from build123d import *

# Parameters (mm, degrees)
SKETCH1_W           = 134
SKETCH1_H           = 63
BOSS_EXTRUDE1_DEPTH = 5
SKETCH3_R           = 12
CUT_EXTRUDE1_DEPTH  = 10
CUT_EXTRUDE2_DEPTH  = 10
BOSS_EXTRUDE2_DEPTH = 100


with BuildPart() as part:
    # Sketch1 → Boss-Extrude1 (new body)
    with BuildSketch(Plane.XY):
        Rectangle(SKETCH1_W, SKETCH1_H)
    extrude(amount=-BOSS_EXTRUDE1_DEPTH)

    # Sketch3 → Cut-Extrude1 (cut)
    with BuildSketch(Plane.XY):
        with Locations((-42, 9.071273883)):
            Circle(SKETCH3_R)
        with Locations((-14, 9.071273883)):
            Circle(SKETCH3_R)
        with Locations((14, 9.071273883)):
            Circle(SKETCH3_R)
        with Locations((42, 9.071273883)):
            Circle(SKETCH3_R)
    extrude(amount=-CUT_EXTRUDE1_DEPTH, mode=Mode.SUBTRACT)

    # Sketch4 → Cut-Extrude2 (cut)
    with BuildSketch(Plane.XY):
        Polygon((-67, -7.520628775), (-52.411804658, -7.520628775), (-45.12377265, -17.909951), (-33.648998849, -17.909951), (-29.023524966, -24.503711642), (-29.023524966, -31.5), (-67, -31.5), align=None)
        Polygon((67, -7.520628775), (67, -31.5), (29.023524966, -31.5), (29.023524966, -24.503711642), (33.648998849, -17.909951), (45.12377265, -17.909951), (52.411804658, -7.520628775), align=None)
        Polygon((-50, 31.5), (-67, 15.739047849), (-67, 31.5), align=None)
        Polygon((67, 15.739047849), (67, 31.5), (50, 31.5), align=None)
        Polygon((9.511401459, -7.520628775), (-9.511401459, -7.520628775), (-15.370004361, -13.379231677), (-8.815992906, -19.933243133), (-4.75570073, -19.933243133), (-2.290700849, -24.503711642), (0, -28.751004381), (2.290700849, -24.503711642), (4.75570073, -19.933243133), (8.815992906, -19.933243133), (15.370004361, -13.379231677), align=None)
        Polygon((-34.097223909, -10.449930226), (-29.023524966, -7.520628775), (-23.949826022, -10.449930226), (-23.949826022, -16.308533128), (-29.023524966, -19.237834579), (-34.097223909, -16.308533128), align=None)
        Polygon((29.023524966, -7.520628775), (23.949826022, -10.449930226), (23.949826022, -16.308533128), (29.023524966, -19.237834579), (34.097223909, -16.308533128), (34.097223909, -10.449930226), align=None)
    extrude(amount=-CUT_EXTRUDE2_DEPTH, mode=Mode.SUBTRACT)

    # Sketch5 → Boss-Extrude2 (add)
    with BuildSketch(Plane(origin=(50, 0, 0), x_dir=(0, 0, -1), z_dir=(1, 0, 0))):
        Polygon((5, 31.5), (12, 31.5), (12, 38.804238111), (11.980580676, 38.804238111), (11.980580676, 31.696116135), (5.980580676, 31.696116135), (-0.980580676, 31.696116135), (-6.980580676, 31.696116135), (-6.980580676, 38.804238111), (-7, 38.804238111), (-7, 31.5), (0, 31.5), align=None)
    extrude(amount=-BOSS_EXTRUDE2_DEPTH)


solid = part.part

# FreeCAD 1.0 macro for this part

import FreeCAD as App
import Part
import Sketcher

V = App.Vector
Q = App.Units.Quantity

doc = App.newDocument("Part")
params = doc.addObject("Spreadsheet::Sheet", "Params")
for row, (alias, value) in enumerate([
    ("sketch1_width", "134 mm"),
    ("sketch1_height", "63 mm"),
    ("pad1_length", "5 mm"),
    ("sketch2_diameter", "24 mm"),
    ("pocket1_length", "10 mm"),
    ("sketch3_width", "17 mm"),
    ("pocket2_length", "10 mm"),
    ("sketch4_height", "19 mm"),
    ("pad2_length", "100 mm"),
], start=1):
    params.set(f"A{row}", alias)
    params.set(f"B{row}", "=" + value)
    params.setAlias(f"B{row}", alias)

body = doc.addObject("PartDesign::Body", "Body")

# Sketch on XY plane
sketch1 = doc.addObject("Sketcher::SketchObject", "Sketch")
body.addObject(sketch1)
sketch1.AttachmentSupport = (doc.XY_Plane, [""])
sketch1.MapMode = "FlatFace"
sketch1.addGeometry(Part.LineSegment(V(-67, 31.5, 0), V(-67, -31.5, 0)), False)
sketch1.addGeometry(Part.LineSegment(V(-67, -31.5, 0), V(67, -31.5, 0)), False)
sketch1.addGeometry(Part.LineSegment(V(67, -31.5, 0), V(67, 31.5, 0)), False)
sketch1.addGeometry(Part.LineSegment(V(67, 31.5, 0), V(-67, 31.5, 0)), False)
sketch1.addConstraint(Sketcher.Constraint("Coincident", 0, 2, 1, 1))
sketch1.addConstraint(Sketcher.Constraint("Coincident", 1, 2, 2, 1))
sketch1.addConstraint(Sketcher.Constraint("Coincident", 2, 2, 3, 1))
sketch1.addConstraint(Sketcher.Constraint("Coincident", 3, 2, 0, 1))
sketch1.addConstraint(Sketcher.Constraint("Vertical", 0))
sketch1.addConstraint(Sketcher.Constraint("Horizontal", 1))
sketch1.addConstraint(Sketcher.Constraint("Vertical", 2))
sketch1.addConstraint(Sketcher.Constraint("Horizontal", 3))
sketch1.addConstraint(Sketcher.Constraint("Symmetric", 0, 2, 2, 2, -1, 1))
sketch1.addConstraint(Sketcher.Constraint("DistanceX", 1, 1, 1, 2, 134.0))
sketch1.addConstraint(Sketcher.Constraint("DistanceY", 0, 2, 0, 1, 63.0))
sketch1.setExpression("Constraints[9]", "Params.sketch1_width")
sketch1.setExpression("Constraints[10]", "Params.sketch1_height")
pad1 = doc.addObject("PartDesign::Pad", "Pad")
body.addObject(pad1)
pad1.Profile = sketch1
pad1.setExpression("Length", "Params.pad1_length")
pad1.Reversed = True

# Sketch on XY plane
sketch2 = doc.addObject("Sketcher::SketchObject", "Sketch001")
body.addObject(sketch2)
sketch2.AttachmentSupport = (doc.XY_Plane, [""])
sketch2.MapMode = "FlatFace"
sketch2.addGeometry(Part.Circle(V(-42, 9.071274, 0), V(0, 0, 1), 12), False)
sketch2.addGeometry(Part.Circle(V(-14, 9.071274, 0), V(0, 0, 1), 12), False)
sketch2.addGeometry(Part.Circle(V(14, 9.071274, 0), V(0, 0, 1), 12), False)
sketch2.addGeometry(Part.Circle(V(42, 9.071274, 0), V(0, 0, 1), 12), False)
sketch2.addConstraint(Sketcher.Constraint("Equal", 0, 1))
sketch2.addConstraint(Sketcher.Constraint("Equal", 1, 2))
sketch2.addConstraint(Sketcher.Constraint("Equal", 2, 3))
sketch2.addConstraint(Sketcher.Constraint("Symmetric", 1, 3, 2, 3, -2))
sketch2.addConstraint(Sketcher.Constraint("Symmetric", 0, 3, 3, 3, -2))
sketch2.addConstraint(Sketcher.Constraint("Horizontal", 0, 3, 1, 3))
sketch2.addConstraint(Sketcher.Constraint("Diameter", 0, 24.0))
sketch2.addConstraint(Sketcher.Constraint("DistanceX", 0, 3, -1, 1, 42.0))
sketch2.addConstraint(Sketcher.Constraint("DistanceX", 1, 3, -1, 1, 14.0))
sketch2.addConstraint(Sketcher.Constraint("DistanceY", -1, 1, 0, 3, 9.071274))
sketch2.setExpression("Constraints[6]", "Params.sketch2_diameter")
pocket1 = doc.addObject("PartDesign::Pocket", "Pocket")
body.addObject(pocket1)
pocket1.Profile = sketch2
pocket1.setExpression("Length", "Params.pocket1_length")

# Sketch on XY plane
sketch3 = doc.addObject("Sketcher::SketchObject", "Sketch002")
body.addObject(sketch3)
sketch3.AttachmentSupport = (doc.XY_Plane, [""])
sketch3.MapMode = "FlatFace"
sketch3.addGeometry(Part.LineSegment(V(-52.411805, -7.520629, 0), V(-67, -7.520629, 0)), False)
sketch3.addGeometry(Part.LineSegment(V(-67, -7.520629, 0), V(-67, -31.5, 0)), False)
sketch3.addGeometry(Part.LineSegment(V(-67, -31.5, 0), V(-29.023525, -31.5, 0)), False)
sketch3.addGeometry(Part.LineSegment(V(-29.023525, -31.5, 0), V(-29.023525, -24.503712, 0)), False)
sketch3.addGeometry(Part.LineSegment(V(-29.023525, -24.503712, 0), V(-33.648999, -17.909951, 0)), False)
sketch3.addGeometry(Part.LineSegment(V(-33.648999, -17.909951, 0), V(-45.123773, -17.909951, 0)), False)
sketch3.addGeometry(Part.LineSegment(V(-45.123773, -17.909951, 0), V(-52.411805, -7.520629, 0)), False)
sketch3.addGeometry(Part.LineSegment(V(67, -31.5, 0), V(67, -7.520629, 0)), False)
sketch3.addGeometry(Part.LineSegment(V(67, -7.520629, 0), V(52.411805, -7.520629, 0)), False)
sketch3.addGeometry(Part.LineSegment(V(52.411805, -7.520629, 0), V(45.123773, -17.909951, 0)), False)
sketch3.addGeometry(Part.LineSegment(V(45.123773, -17.909951, 0), V(33.648999, -17.909951, 0)), False)
sketch3.addGeometry(Part.LineSegment(V(33.648999, -17.909951, 0), V(29.023525, -24.503712, 0)), False)
sketch3.addGeometry(Part.LineSegment(V(29.023525, -24.503712, 0), V(29.023525, -31.5, 0)), False)
sketch3.addGeometry(Part.LineSegment(V(29.023525, -31.5, 0), V(67, -31.5, 0)), False)
sketch3.addGeometry(Part.LineSegment(V(-67, 15.739048, 0), V(-50, 31.5, 0)), False)
sketch3.addGeometry(Part.LineSegment(V(-50, 31.5, 0), V(-67, 31.5, 0)), False)
sketch3.addGeometry(Part.LineSegment(V(-67, 31.5, 0), V(-67, 15.739048, 0)), False)
sketch3.addGeometry(Part.LineSegment(V(67, 15.739048, 0), V(67, 31.5, 0)), False)
sketch3.addGeometry(Part.LineSegment(V(67, 31.5, 0), V(50, 31.5, 0)), False)
sketch3.addGeometry(Part.LineSegment(V(50, 31.5, 0), V(67, 15.739048, 0)), False)
sketch3.addGeometry(Part.LineSegment(V(9.511401, -7.520629, 0), V(-9.511401, -7.520629, 0)), False)
sketch3.addGeometry(Part.LineSegment(V(-9.511401, -7.520629, 0), V(-15.370004, -13.379232, 0)), False)
sketch3.addGeometry(Part.LineSegment(V(-15.370004, -13.379232, 0), V(-8.815993, -19.933243, 0)), False)
sketch3.addGeometry(Part.LineSegment(V(-8.815993, -19.933243, 0), V(-4.755701, -19.933243, 0)), False)
sketch3.addGeometry(Part.LineSegment(V(-4.755701, -19.933243, 0), V(-2.290701, -24.503712, 0)), False)
sketch3.addGeometry(Part.LineSegment(V(-2.290701, -24.503712, 0), V(0, -28.751004, 0)), False)
sketch3.addGeometry(Part.LineSegment(V(0, -28.751004, 0), V(2.290701, -24.503712, 0)), False)
sketch3.addGeometry(Part.LineSegment(V(2.290701, -24.503712, 0), V(4.755701, -19.933243, 0)), False)
sketch3.addGeometry(Part.LineSegment(V(4.755701, -19.933243, 0), V(8.815993, -19.933243, 0)), False)
sketch3.addGeometry(Part.LineSegment(V(8.815993, -19.933243, 0), V(15.370004, -13.379232, 0)), False)
sketch3.addGeometry(Part.LineSegment(V(15.370004, -13.379232, 0), V(9.511401, -7.520629, 0)), False)
sketch3.addGeometry(Part.LineSegment(V(-29.023525, -7.520629, 0), V(-34.097224, -10.44993, 0)), False)
sketch3.addGeometry(Part.LineSegment(V(-34.097224, -10.44993, 0), V(-34.097224, -16.308533, 0)), False)
sketch3.addGeometry(Part.LineSegment(V(-34.097224, -16.308533, 0), V(-29.023525, -19.237835, 0)), False)
sketch3.addGeometry(Part.LineSegment(V(-29.023525, -19.237835, 0), V(-23.949826, -16.308533, 0)), False)
sketch3.addGeometry(Part.LineSegment(V(-23.949826, -16.308533, 0), V(-23.949826, -10.44993, 0)), False)
sketch3.addGeometry(Part.LineSegment(V(-23.949826, -10.44993, 0), V(-29.023525, -7.520629, 0)), False)
sketch3.addGeometry(Part.LineSegment(V(29.023525, -7.520629, 0), V(23.949826, -10.44993, 0)), False)
sketch3.addGeometry(Part.LineSegment(V(23.949826, -10.44993, 0), V(23.949826, -16.308533, 0)), False)
sketch3.addGeometry(Part.LineSegment(V(23.949826, -16.308533, 0), V(29.023525, -19.237835, 0)), False)
sketch3.addGeometry(Part.LineSegment(V(29.023525, -19.237835, 0), V(34.097224, -16.308533, 0)), False)
sketch3.addGeometry(Part.LineSegment(V(34.097224, -16.308533, 0), V(34.097224, -10.44993, 0)), False)
sketch3.addGeometry(Part.LineSegment(V(34.097224, -10.44993, 0), V(29.023525, -7.520629, 0)), False)
sketch3.addConstraint(Sketcher.Constraint("Coincident", 0, 2, 1, 1))
sketch3.addConstraint(Sketcher.Constraint("Coincident", 1, 2, 2, 1))
sketch3.addConstraint(Sketcher.Constraint("Coincident", 2, 2, 3, 1))
sketch3.addConstraint(Sketcher.Constraint("Coincident", 3, 2, 4, 1))
sketch3.addConstraint(Sketcher.Constraint("Coincident", 4, 2, 5, 1))
sketch3.addConstraint(Sketcher.Constraint("Coincident", 5, 2, 6, 1))
sketch3.addConstraint(Sketcher.Constraint("Coincident", 6, 2, 0, 1))
sketch3.addConstraint(Sketcher.Constraint("Coincident", 7, 2, 8, 1))
sketch3.addConstraint(Sketcher.Constraint("Coincident", 8, 2, 9, 1))
sketch3.addConstraint(Sketcher.Constraint("Coincident", 9, 2, 10, 1))
sketch3.addConstraint(Sketcher.Constraint("Coincident", 10, 2, 11, 1))
sketch3.addConstraint(Sketcher.Constraint("Coincident", 11, 2, 12, 1))
sketch3.addConstraint(Sketcher.Constraint("Coincident", 12, 2, 13, 1))
sketch3.addConstraint(Sketcher.Constraint("Coincident", 13, 2, 7, 1))
sketch3.addConstraint(Sketcher.Constraint("Coincident", 14, 2, 15, 1))
sketch3.addConstraint(Sketcher.Constraint("Coincident", 15, 2, 16, 1))
sketch3.addConstraint(Sketcher.Constraint("Coincident", 16, 2, 14, 1))
sketch3.addConstraint(Sketcher.Constraint("Coincident", 17, 2, 18, 1))
sketch3.addConstraint(Sketcher.Constraint("Coincident", 18, 2, 19, 1))
sketch3.addConstraint(Sketcher.Constraint("Coincident", 19, 2, 17, 1))
sketch3.addConstraint(Sketcher.Constraint("Coincident", 20, 2, 21, 1))
sketch3.addConstraint(Sketcher.Constraint("Coincident", 21, 2, 22, 1))
sketch3.addConstraint(Sketcher.Constraint("Coincident", 22, 2, 23, 1))
sketch3.addConstraint(Sketcher.Constraint("Coincident", 23, 2, 24, 1))
sketch3.addConstraint(Sketcher.Constraint("Coincident", 24, 2, 25, 1))
sketch3.addConstraint(Sketcher.Constraint("Coincident", 25, 2, 26, 1))
sketch3.addConstraint(Sketcher.Constraint("Coincident", 26, 2, 27, 1))
sketch3.addConstraint(Sketcher.Constraint("Coincident", 27, 2, 28, 1))
sketch3.addConstraint(Sketcher.Constraint("Coincident", 28, 2, 29, 1))
sketch3.addConstraint(Sketcher.Constraint("Coincident", 29, 2, 30, 1))
sketch3.addConstraint(Sketcher.Constraint("Coincident", 30, 2, 20, 1))
sketch3.addConstraint(Sketcher.Constraint("Coincident", 31, 2, 32, 1))
sketch3.addConstraint(Sketcher.Constraint("Coincident", 32, 2, 33, 1))
sketch3.addConstraint(Sketcher.Constraint("Coincident", 33, 2, 34, 1))
sketch3.addConstraint(Sketcher.Constraint("Coincident", 34, 2, 35, 1))
sketch3.addConstraint(Sketcher.Constraint("Coincident", 35, 2, 36, 1))
sketch3.addConstraint(Sketcher.Constraint("Coincident", 36, 2, 31, 1))
sketch3.addConstraint(Sketcher.Constraint("Coincident", 37, 2, 38, 1))
sketch3.addConstraint(Sketcher.Constraint("Coincident", 38, 2, 39, 1))
sketch3.addConstraint(Sketcher.Constraint("Coincident", 39, 2, 40, 1))
sketch3.addConstraint(Sketcher.Constraint("Coincident", 40, 2, 41, 1))
sketch3.addConstraint(Sketcher.Constraint("Coincident", 41, 2, 42, 1))
sketch3.addConstraint(Sketcher.Constraint("Coincident", 42, 2, 37, 1))
sketch3.addConstraint(Sketcher.Constraint("Horizontal", 0))
sketch3.addConstraint(Sketcher.Constraint("Vertical", 1))
sketch3.addConstraint(Sketcher.Constraint("Horizontal", 2))
sketch3.addConstraint(Sketcher.Constraint("Vertical", 3))
sketch3.addConstraint(Sketcher.Constraint("Horizontal", 5))
sketch3.addConstraint(Sketcher.Constraint("Vertical", 7))
sketch3.addConstraint(Sketcher.Constraint("Horizontal", 8))
sketch3.addConstraint(Sketcher.Constraint("Horizontal", 10))
sketch3.addConstraint(Sketcher.Constraint("Vertical", 12))
sketch3.addConstraint(Sketcher.Constraint("Horizontal", 13))
sketch3.addConstraint(Sketcher.Constraint("Horizontal", 15))
sketch3.addConstraint(Sketcher.Constraint("Vertical", 16))
sketch3.addConstraint(Sketcher.Constraint("Vertical", 17))
sketch3.addConstraint(Sketcher.Constraint("Horizontal", 18))
sketch3.addConstraint(Sketcher.Constraint("Horizontal", 20))
sketch3.addConstraint(Sketcher.Constraint("Horizontal", 23))
sketch3.addConstraint(Sketcher.Constraint("Horizontal", 28))
sketch3.addConstraint(Sketcher.Constraint("Vertical", 32))
sketch3.addConstraint(Sketcher.Constraint("Vertical", 35))
sketch3.addConstraint(Sketcher.Constraint("Vertical", 38))
sketch3.addConstraint(Sketcher.Constraint("Vertical", 41))
sketch3.addConstraint(Sketcher.Constraint("Symmetric", 13, 2, 15, 2, -1, 1))
sketch3.addConstraint(Sketcher.Constraint("Symmetric", 1, 2, 17, 2, -1, 1))
sketch3.addConstraint(Sketcher.Constraint("Symmetric", 0, 2, 7, 2, -2))
sketch3.addConstraint(Sketcher.Constraint("Symmetric", 5, 2, 9, 2, -2))
sketch3.addConstraint(Sketcher.Constraint("Symmetric", 3, 2, 11, 2, -2))
sketch3.addConstraint(Sketcher.Constraint("Symmetric", 14, 2, 18, 2, -2))
sketch3.addConstraint(Sketcher.Constraint("Symmetric", 24, 2, 26, 2, -2))
sketch3.addConstraint(Sketcher.Constraint("Symmetric", 23, 2, 27, 2, -2))
sketch3.addConstraint(Sketcher.Constraint("Symmetric", 21, 2, 29, 2, -2))
sketch3.addConstraint(Sketcher.Constraint("Symmetric", 35, 2, 37, 2, -2))
sketch3.addConstraint(Sketcher.Constraint("Symmetric", 33, 2, 39, 2, -2))
sketch3.addConstraint(Sketcher.Constraint("Symmetric", 32, 2, 40, 2, -2))
sketch3.addConstraint(Sketcher.Constraint("Symmetric", 36, 2, 42, 2, -2))
sketch3.addConstraint(Sketcher.Constraint("PointOnObject", 25, 2, -2))
sketch3.addConstraint(Sketcher.Constraint("Parallel", 4, 6))
sketch3.addConstraint(Sketcher.Constraint("Parallel", 9, 11))
sketch3.addConstraint(Sketcher.Constraint("Perpendicular", 21, 22))
sketch3.addConstraint(Sketcher.Constraint("Parallel", 24, 25))
sketch3.addConstraint(Sketcher.Constraint("Perpendicular", 22, 29))
sketch3.addConstraint(Sketcher.Constraint("Perpendicular", 29, 30))
sketch3.addConstraint(Sketcher.Constraint("Parallel", 31, 34))
sketch3.addConstraint(Sketcher.Constraint("Parallel", 33, 36))
sketch3.addConstraint(Sketcher.Constraint("Parallel", 34, 37))
sketch3.addConstraint(Sketcher.Constraint("Parallel", 36, 39))
sketch3.addConstraint(Sketcher.Constraint("Parallel", 39, 42))
sketch3.addConstraint(Sketcher.Constraint("Horizontal", 16, 2, 19, 2))
sketch3.addConstraint(Sketcher.Constraint("Horizontal", 8, 2, 20, 2))
sketch3.addConstraint(Sketcher.Constraint("Horizontal", 11, 2, 24, 2))
sketch3.addConstraint(Sketcher.Constraint("Horizontal", 32, 2, 34, 2))
sketch3.addConstraint(Sketcher.Constraint("Horizontal", 31, 2, 35, 2))
sketch3.addConstraint(Sketcher.Constraint("Horizontal", 30, 2, 36, 2))
sketch3.addConstraint(Sketcher.Constraint("Vertical", 3, 2, 33, 2))
sketch3.addConstraint(Sketcher.Constraint("Equal", 0, 8))
sketch3.addConstraint(Sketcher.Constraint("Equal", 23, 28))
sketch3.addConstraint(Sketcher.Constraint("DistanceX", 15, 2, 15, 1, 17.0))
sketch3.addConstraint(Sketcher.Constraint("Angle", 31, Q("-150 deg")))
sketch3.addConstraint(Sketcher.Constraint("DistanceX", 0, 2, -1, 1, 67.0))
sketch3.addConstraint(Sketcher.Constraint("DistanceY", 13, 2, 17, 2, 63.0))
sketch3.addConstraint(Sketcher.Constraint("DistanceX", 4, 2, -1, 1, 33.648999))
sketch3.addConstraint(Sketcher.Constraint("DistanceY", 5, 2, 16, 2, 33.648999))
sketch3.addConstraint(Sketcher.Constraint("DistanceX", 23, 2, 24, 2, 2.465))
sketch3.addConstraint(Sketcher.Constraint("DistanceY", 1, 2, 1, 1, 23.979371))
sketch3.addConstraint(Sketcher.Constraint("DistanceY", 3, 1, 3, 2, 6.996288))
sketch3.addConstraint(Sketcher.Constraint("DistanceX", 20, 2, -1, 1, 9.511401))
sketch3.addConstraint(Sketcher.Constraint("DistanceX", 23, 2, -1, 1, 4.755701))
sketch3.addConstraint(Sketcher.Constraint("DistanceX", 31, 2, 3, 2, 5.073699))
sketch3.addConstraint(Sketcher.Constraint("DistanceY", 21, 2, 31, 2, 2.929301))
sketch3.addConstraint(Sketcher.Constraint("DistanceY", 34, 2, 21, 2, 2.929301))
sketch3.addConstraint(Sketcher.Constraint("Distance", 4, 8.054358))
sketch3.addConstraint(Sketcher.Constraint("Distance", 22, 9.268772))
sketch3.addConstraint(Sketcher.Constraint("DistanceX", 0, 2, 0, 1, 14.588195))
sketch3.addConstraint(Sketcher.Constraint("DistanceX", 2, 1, 2, 2, 37.976475))
sketch3.setExpression("Constraints[98]", "Params.sketch3_width")
pocket2 = doc.addObject("PartDesign::Pocket", "Pocket001")
body.addObject(pocket2)
pocket2.Profile = sketch3
pocket2.setExpression("Length", "Params.pocket2_length")

# Sketch on YZ plane
sketch4 = doc.addObject("Sketcher::SketchObject", "Sketch003")
body.addObject(sketch4)
sketch4.AttachmentSupport = (doc.YZ_Plane, [""])
sketch4.MapMode = "FlatFace"
sketch4.AttachmentOffset = App.Placement(V(0, 0, 50), App.Rotation())
sketch4.addGeometry(Part.LineSegment(V(31.5, -12, 0), V(38.804238, -12, 0)), False)
sketch4.addGeometry(Part.LineSegment(V(38.804238, -12, 0), V(38.804238, -11.980581, 0)), False)
sketch4.addGeometry(Part.LineSegment(V(38.804238, -11.980581, 0), V(31.696116, -11.980581, 0)), False)
sketch4.addGeometry(Part.LineSegment(V(31.696116, -11.980581, 0), V(31.696116, 6.980581, 0)), False)
sketch4.addGeometry(Part.LineSegment(V(31.696116, 6.980581, 0), V(38.804238, 6.980581, 0)), False)
sketch4.addGeometry(Part.LineSegment(V(38.804238, 6.980581, 0), V(38.804238, 7, 0)), False)
sketch4.addGeometry(Part.LineSegment(V(38.804238, 7, 0), V(31.5, 7, 0)), False)
sketch4.addGeometry(Part.LineSegment(V(31.5, 7, 0), V(31.5, -12, 0)), False)
sketch4.addConstraint(Sketcher.Constraint("Coincident", 0, 2, 1, 1))
sketch4.addConstraint(Sketcher.Constraint("Coincident", 1, 2, 2, 1))
sketch4.addConstraint(Sketcher.Constraint("Coincident", 2, 2, 3, 1))
sketch4.addConstraint(Sketcher.Constraint("Coincident", 3, 2, 4, 1))
sketch4.addConstraint(Sketcher.Constraint("Coincident", 4, 2, 5, 1))
sketch4.addConstraint(Sketcher.Constraint("Coincident", 5, 2, 6, 1))
sketch4.addConstraint(Sketcher.Constraint("Coincident", 6, 2, 7, 1))
sketch4.addConstraint(Sketcher.Constraint("Coincident", 7, 2, 0, 1))
sketch4.addConstraint(Sketcher.Constraint("Horizontal", 0))
sketch4.addConstraint(Sketcher.Constraint("Vertical", 1))
sketch4.addConstraint(Sketcher.Constraint("Horizontal", 2))
sketch4.addConstraint(Sketcher.Constraint("Vertical", 3))
sketch4.addConstraint(Sketcher.Constraint("Horizontal", 4))
sketch4.addConstraint(Sketcher.Constraint("Vertical", 5))
sketch4.addConstraint(Sketcher.Constraint("Horizontal", 6))
sketch4.addConstraint(Sketcher.Constraint("Vertical", 7))
sketch4.addConstraint(Sketcher.Constraint("Vertical", 1, 2, 4, 2))
sketch4.addConstraint(Sketcher.Constraint("Equal", 1, 5))
sketch4.addConstraint(Sketcher.Constraint("DistanceY", 7, 2, 7, 1, 19.0))
sketch4.addConstraint(Sketcher.Constraint("DistanceY", 0, 2, -1, 1, 12.0))
sketch4.addConstraint(Sketcher.Constraint("DistanceX", -1, 1, 6, 2, 31.5))
sketch4.addConstraint(Sketcher.Constraint("DistanceX", 0, 1, 0, 2, 7.304238))
sketch4.addConstraint(Sketcher.Constraint("DistanceX", 2, 2, 2, 1, 7.108122))
sketch4.addConstraint(Sketcher.Constraint("DistanceY", 1, 1, 1, 2, 0.019419))
sketch4.setExpression("Constraints[18]", "Params.sketch4_height")
pad2 = doc.addObject("PartDesign::Pad", "Pad001")
body.addObject(pad2)
pad2.Profile = sketch4
pad2.setExpression("Length", "Params.pad2_length")
pad2.Reversed = True

doc.recompute()
